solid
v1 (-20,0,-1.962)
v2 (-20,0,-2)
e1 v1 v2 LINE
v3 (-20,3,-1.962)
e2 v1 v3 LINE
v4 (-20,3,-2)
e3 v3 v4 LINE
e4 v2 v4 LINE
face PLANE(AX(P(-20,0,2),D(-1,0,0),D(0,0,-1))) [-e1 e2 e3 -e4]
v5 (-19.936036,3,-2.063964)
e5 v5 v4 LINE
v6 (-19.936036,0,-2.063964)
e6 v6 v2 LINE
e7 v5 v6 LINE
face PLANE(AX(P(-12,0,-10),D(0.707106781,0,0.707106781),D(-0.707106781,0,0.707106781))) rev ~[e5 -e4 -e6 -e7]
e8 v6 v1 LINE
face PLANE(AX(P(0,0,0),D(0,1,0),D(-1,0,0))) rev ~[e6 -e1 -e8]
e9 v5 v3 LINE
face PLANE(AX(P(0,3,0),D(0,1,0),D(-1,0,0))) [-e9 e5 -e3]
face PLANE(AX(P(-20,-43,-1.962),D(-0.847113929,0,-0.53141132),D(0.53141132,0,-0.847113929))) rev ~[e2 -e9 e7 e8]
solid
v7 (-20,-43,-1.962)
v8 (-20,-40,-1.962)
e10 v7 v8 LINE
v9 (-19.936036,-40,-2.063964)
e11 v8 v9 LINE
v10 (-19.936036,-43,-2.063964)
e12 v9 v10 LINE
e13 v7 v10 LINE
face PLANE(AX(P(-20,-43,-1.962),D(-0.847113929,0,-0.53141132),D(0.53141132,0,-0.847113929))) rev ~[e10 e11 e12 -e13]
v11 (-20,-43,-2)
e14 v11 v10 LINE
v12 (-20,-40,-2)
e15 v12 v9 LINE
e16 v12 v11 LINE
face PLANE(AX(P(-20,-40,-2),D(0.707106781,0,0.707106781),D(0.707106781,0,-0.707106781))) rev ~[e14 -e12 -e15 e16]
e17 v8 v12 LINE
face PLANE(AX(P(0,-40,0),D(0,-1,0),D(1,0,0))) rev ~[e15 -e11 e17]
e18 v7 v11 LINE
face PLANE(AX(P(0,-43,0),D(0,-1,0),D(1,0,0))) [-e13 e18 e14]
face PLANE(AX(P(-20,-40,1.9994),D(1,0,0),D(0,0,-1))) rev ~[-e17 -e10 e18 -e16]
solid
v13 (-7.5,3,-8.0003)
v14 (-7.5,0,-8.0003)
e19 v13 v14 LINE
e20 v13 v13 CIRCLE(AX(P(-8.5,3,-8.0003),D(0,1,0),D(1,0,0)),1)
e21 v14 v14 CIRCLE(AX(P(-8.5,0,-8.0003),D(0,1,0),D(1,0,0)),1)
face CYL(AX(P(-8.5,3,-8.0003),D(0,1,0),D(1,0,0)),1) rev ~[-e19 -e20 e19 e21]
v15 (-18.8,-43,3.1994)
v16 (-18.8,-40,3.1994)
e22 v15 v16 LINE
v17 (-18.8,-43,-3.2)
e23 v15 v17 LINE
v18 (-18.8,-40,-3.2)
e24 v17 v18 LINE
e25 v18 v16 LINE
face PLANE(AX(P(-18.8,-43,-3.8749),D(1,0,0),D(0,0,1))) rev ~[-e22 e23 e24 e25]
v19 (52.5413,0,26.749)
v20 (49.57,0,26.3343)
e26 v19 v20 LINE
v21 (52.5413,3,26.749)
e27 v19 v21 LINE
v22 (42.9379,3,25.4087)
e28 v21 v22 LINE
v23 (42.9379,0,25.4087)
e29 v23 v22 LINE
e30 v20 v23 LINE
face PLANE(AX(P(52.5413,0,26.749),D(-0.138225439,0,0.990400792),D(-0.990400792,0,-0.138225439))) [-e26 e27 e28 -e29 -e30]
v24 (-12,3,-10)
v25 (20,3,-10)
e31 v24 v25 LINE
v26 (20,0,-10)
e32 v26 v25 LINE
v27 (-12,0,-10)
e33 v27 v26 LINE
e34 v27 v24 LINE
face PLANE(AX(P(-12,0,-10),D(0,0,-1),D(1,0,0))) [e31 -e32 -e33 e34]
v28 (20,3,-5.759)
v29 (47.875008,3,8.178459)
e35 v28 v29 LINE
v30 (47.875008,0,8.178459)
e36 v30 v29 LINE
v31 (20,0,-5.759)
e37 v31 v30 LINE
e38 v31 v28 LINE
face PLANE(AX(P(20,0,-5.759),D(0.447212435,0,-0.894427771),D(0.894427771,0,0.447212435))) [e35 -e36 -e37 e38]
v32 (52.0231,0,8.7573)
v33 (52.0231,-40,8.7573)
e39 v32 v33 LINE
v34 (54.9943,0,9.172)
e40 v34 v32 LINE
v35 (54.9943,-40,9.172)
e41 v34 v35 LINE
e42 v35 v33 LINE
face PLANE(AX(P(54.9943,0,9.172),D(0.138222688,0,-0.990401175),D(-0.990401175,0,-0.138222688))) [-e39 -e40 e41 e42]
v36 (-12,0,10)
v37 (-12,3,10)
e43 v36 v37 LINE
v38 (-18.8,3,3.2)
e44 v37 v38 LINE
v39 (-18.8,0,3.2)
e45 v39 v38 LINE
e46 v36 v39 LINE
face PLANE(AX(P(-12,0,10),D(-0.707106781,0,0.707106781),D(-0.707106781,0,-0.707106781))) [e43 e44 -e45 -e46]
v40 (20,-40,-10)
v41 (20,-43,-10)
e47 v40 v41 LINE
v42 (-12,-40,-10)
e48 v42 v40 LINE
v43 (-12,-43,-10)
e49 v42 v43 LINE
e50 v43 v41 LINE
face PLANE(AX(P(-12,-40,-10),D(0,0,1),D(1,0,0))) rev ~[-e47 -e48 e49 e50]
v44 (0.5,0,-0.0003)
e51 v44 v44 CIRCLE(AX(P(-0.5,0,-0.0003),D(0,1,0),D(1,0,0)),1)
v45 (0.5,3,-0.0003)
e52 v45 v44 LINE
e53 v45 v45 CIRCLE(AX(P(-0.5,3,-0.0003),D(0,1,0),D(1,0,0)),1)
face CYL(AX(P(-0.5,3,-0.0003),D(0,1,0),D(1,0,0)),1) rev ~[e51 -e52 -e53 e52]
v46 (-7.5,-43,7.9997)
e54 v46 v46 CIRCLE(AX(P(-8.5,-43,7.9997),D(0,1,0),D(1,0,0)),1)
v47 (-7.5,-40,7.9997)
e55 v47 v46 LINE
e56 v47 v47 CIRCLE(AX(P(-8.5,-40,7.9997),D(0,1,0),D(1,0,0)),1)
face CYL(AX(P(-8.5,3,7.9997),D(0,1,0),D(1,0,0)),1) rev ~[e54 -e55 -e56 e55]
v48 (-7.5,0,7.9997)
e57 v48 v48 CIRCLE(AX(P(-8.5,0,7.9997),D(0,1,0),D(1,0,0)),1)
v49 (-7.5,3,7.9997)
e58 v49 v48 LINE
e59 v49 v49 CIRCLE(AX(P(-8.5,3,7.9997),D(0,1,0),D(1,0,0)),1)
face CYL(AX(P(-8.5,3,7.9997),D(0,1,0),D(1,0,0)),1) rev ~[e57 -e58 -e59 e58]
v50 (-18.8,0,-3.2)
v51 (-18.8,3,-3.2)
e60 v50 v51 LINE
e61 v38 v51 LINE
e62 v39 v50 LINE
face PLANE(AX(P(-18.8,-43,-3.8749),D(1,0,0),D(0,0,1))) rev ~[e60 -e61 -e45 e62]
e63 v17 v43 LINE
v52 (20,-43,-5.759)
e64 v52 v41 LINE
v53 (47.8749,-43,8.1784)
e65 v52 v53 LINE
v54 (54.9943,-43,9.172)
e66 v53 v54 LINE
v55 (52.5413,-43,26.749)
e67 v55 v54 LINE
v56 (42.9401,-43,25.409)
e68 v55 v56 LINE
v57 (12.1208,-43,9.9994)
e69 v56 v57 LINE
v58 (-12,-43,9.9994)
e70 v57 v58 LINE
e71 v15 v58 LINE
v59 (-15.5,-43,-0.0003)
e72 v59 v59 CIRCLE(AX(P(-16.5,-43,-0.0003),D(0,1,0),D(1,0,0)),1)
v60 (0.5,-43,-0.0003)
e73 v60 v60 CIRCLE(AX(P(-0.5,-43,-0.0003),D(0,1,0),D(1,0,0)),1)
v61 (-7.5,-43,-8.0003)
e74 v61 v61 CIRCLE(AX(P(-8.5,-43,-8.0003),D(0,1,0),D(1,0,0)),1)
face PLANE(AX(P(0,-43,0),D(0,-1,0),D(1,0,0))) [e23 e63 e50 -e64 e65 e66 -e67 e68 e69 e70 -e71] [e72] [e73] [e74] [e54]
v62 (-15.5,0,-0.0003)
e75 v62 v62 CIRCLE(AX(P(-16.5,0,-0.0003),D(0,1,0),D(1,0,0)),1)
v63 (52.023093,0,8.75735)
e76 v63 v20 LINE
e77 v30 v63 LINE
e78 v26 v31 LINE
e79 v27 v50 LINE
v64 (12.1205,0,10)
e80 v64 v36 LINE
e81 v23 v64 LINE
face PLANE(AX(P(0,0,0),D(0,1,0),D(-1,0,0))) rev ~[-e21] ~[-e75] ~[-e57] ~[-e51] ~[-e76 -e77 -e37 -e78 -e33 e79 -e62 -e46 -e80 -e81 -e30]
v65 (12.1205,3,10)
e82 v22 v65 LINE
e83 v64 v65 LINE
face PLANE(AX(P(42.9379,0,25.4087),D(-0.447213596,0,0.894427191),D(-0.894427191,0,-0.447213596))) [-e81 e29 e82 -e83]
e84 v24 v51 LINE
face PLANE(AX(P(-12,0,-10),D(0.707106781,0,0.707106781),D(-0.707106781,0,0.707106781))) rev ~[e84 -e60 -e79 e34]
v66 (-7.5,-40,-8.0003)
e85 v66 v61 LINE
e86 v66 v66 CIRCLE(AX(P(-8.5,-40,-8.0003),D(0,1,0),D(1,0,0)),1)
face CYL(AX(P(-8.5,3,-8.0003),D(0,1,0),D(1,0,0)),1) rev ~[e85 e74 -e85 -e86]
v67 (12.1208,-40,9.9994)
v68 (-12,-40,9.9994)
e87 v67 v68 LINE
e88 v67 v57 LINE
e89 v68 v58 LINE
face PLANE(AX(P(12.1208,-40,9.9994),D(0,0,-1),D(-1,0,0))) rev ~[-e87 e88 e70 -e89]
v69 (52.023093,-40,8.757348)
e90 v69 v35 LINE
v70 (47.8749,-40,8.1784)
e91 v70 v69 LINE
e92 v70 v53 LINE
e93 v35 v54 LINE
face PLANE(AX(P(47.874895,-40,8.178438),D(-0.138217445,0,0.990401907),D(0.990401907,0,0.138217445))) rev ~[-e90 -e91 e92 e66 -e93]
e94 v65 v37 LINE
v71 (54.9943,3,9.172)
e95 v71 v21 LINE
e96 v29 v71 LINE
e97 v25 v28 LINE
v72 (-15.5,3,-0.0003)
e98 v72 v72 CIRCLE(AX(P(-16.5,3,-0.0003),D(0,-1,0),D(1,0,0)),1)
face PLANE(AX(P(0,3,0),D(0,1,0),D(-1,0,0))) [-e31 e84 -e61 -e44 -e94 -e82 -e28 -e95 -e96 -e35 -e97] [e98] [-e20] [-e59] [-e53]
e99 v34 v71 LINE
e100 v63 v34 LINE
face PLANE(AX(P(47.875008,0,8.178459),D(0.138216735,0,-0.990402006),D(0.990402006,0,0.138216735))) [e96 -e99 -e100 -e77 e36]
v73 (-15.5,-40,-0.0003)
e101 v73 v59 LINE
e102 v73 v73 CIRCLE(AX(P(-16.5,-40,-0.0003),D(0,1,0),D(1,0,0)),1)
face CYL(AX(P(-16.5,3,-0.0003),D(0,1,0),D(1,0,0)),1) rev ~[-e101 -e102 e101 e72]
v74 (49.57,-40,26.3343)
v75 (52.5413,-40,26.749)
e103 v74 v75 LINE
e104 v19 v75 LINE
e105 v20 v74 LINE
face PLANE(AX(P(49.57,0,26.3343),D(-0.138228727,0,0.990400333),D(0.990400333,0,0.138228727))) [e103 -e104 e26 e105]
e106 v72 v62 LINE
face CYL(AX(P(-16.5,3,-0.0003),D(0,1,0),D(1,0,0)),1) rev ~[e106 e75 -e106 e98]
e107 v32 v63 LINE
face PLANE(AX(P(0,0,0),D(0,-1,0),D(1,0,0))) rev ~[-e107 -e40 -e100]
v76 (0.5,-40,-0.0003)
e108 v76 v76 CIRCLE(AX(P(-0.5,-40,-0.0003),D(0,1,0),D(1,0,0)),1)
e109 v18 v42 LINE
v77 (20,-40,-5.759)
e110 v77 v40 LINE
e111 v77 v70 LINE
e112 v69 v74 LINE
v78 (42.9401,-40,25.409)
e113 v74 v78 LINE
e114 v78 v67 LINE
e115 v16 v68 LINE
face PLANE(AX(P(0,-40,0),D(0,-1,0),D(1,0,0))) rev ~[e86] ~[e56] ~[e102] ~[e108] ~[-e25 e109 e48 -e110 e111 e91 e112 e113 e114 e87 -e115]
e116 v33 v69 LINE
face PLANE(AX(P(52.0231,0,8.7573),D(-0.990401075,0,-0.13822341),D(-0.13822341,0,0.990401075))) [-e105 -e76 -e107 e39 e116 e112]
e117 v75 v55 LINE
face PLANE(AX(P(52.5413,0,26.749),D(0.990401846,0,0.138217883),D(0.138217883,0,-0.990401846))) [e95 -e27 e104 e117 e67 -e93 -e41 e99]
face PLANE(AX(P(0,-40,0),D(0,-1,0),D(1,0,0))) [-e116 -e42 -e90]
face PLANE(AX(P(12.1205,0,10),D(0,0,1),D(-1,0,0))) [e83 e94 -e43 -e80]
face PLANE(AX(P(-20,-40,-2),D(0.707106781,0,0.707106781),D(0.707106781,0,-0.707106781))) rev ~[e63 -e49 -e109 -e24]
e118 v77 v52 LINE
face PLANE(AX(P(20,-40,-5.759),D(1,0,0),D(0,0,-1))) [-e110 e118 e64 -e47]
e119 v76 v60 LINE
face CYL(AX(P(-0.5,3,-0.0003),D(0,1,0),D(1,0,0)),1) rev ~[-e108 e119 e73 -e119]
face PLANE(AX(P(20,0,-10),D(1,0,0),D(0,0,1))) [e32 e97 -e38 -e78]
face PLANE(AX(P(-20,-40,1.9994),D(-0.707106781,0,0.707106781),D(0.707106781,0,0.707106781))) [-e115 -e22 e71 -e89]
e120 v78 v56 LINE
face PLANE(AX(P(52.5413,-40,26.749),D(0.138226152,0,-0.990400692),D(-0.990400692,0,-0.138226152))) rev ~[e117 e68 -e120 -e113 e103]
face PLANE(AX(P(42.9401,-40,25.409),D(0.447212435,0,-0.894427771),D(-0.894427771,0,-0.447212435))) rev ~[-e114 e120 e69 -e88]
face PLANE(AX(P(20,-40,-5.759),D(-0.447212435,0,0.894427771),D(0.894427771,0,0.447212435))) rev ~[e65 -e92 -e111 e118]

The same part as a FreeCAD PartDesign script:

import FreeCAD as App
import Part
import Sketcher
Q = App.Units.Quantity

doc = App.newDocument("Part")
params = doc.addObject("Spreadsheet::Sheet", "Params")
for row, (alias, value) in enumerate([
    ("pad1_length", "3 mm"),
    ("sketch2_length", "3 mm"),
    ("pad2_length", "40 mm"),
    ("pad3_length", "3 mm"),
    ("sketch4_diameter", "2 mm"),
    ("pocket1_length", "50 mm"),
    ("pocket2_length", "50 mm"),
], start=1):
    params.set(f"A{row}", alias)
    params.set(f"B{row}", "=" + value)
    params.setAlias(f"B{row}", alias)

body = doc.addObject("PartDesign::Body", "Body")
body.AllowCompound = True

sketch1 = body.newObject("Sketcher::SketchObject", "Sketch")
sketch1.AttachmentSupport = (doc.getObject("XZ_Plane"), [""])
sketch1.MapMode = "FlatFace"
sketch1.addGeometry([
    Part.LineSegment(App.Vector(47.9, 8.2, 0), App.Vector(20, -5.8, 0)),
    Part.LineSegment(App.Vector(20, -5.8, 0), App.Vector(20, -10, 0)),
    Part.LineSegment(App.Vector(20, -10, 0), App.Vector(-12, -10, 0)),
    Part.LineSegment(App.Vector(-12, -10, 0), App.Vector(-20, -2, 0)),
    Part.LineSegment(App.Vector(-20, -2, 0), App.Vector(-20, 2, 0)),
    Part.LineSegment(App.Vector(-20, 2, 0), App.Vector(-12, 10, 0)),
    Part.LineSegment(App.Vector(-12, 10, 0), App.Vector(12.1, 10, 0)),
    Part.LineSegment(App.Vector(12.1, 10, 0), App.Vector(42.9, 25.4, 0)),
    Part.LineSegment(App.Vector(42.9, 25.4, 0), App.Vector(52.5, 26.7, 0)),
    Part.LineSegment(App.Vector(52.5, 26.7, 0), App.Vector(55, 9.2, 0)),
    Part.LineSegment(App.Vector(55, 9.2, 0), App.Vector(47.9, 8.2, 0)),
], False)
sketch1.addConstraint([
    Sketcher.Constraint("Coincident", 0, 2, 1, 1),
    Sketcher.Constraint("Coincident", 1, 2, 2, 1),
    Sketcher.Constraint("Coincident", 2, 2, 3, 1),
    Sketcher.Constraint("Coincident", 3, 2, 4, 1),
    Sketcher.Constraint("Coincident", 4, 2, 5, 1),
    Sketcher.Constraint("Coincident", 5, 2, 6, 1),
    Sketcher.Constraint("Coincident", 6, 2, 7, 1),
    Sketcher.Constraint("Coincident", 7, 2, 8, 1),
    Sketcher.Constraint("Coincident", 8, 2, 9, 1),
    Sketcher.Constraint("Coincident", 9, 2, 10, 1),
    Sketcher.Constraint("Coincident", 10, 2, 0, 1),
    Sketcher.Constraint("Vertical", 1),
    Sketcher.Constraint("Horizontal", 2),
    Sketcher.Constraint("Vertical", 4),
    Sketcher.Constraint("Horizontal", 6),
    Sketcher.Constraint("Symmetric", 2, 2, 5, 2, -1),
    Sketcher.Constraint("Perpendicular", 3, 5),
    Sketcher.Constraint("Parallel", 0, 7),
    Sketcher.Constraint("Perpendicular", 8, 9),
    Sketcher.Constraint("Perpendicular", 9, 10),
    Sketcher.Constraint("Equal", 3, 5),
    Sketcher.Constraint("DistanceX", -1, 1, 0, 2, 20.0),
    Sketcher.Constraint("DistanceX", 3, 2, -1, 1, 20.0),
    Sketcher.Constraint("DistanceX", 3, 2, 2, 2, 8.0),
    Sketcher.Constraint("DistanceY", 2, 2, 5, 2, 20.0),
    Sketcher.Constraint("DistanceY", 1, 2, 1, 1, 4.241),
    Sketcher.Constraint("Distance", 7, 34.455),
    Sketcher.Constraint("DistanceX", 6, 1, 6, 2, 24.1205),
    Sketcher.Constraint("DistanceX", -1, 1, 7, 2, 42.938),
    Sketcher.Constraint("DistanceY", -1, 1, 8, 2, 26.749),
    Sketcher.Constraint("DistanceY", -1, 1, 9, 2, 9.172),
    Sketcher.Constraint("DistanceX", 8, 2, 9, 2, 2.453),
])
pad1 = body.newObject("PartDesign::Pad", "Pad")
pad1.Profile = sketch1
pad1.setExpression("Length", "Params.pad1_length")
pad1.Reversed = True

sketch2 = body.newObject("Sketcher::SketchObject", "Sketch001")
sketch2.AttachmentSupport = (doc.getObject("XZ_Plane"), [""])
sketch2.MapMode = "FlatFace"
sketch2.addGeometry([
    Part.LineSegment(App.Vector(52, 8.8, 0), App.Vector(55, 9.2, 0)),
    Part.LineSegment(App.Vector(55, 9.2, 0), App.Vector(52.5, 26.7, 0)),
    Part.LineSegment(App.Vector(52.5, 26.7, 0), App.Vector(49.6, 26.3, 0)),
    Part.LineSegment(App.Vector(49.6, 26.3, 0), App.Vector(52, 8.8, 0)),
], False)
sketch2.addConstraint([
    Sketcher.Constraint("Coincident", 0, 2, 1, 1),
    Sketcher.Constraint("Coincident", 1, 2, 2, 1),
    Sketcher.Constraint("Coincident", 2, 2, 3, 1),
    Sketcher.Constraint("Coincident", 3, 2, 0, 1),
    Sketcher.Constraint("Perpendicular", 0, 1),
    Sketcher.Constraint("Perpendicular", 1, 2),
    Sketcher.Constraint("Perpendicular", 2, 3),
    Sketcher.Constraint("Distance", 0, 3.0),
    Sketcher.Constraint("DistanceX", -1, 1, 2, 2, 49.57),
    Sketcher.Constraint("DistanceY", -1, 1, 0, 2, 9.172),
    Sketcher.Constraint("DistanceY", -1, 1, 1, 2, 26.749),
    Sketcher.Constraint("DistanceX", -1, 1, 3, 2, 52.023),
])
sketch2.setExpression("Constraints[7]", "Params.sketch2_length")
pad2 = body.newObject("PartDesign::Pad", "Pad001")
pad2.Profile = sketch2
pad2.setExpression("Length", "Params.pad2_length")

sketch3 = body.newObject("Sketcher::SketchObject", "Sketch002")
sketch3.AttachmentSupport = (doc.getObject("XZ_Plane"), [""])
sketch3.MapMode = "FlatFace"
sketch3.AttachmentOffset = App.Placement(App.Vector(0, 0, 40), App.Rotation())
sketch3.addGeometry([
    Part.LineSegment(App.Vector(55, 9.2, 0), App.Vector(52.5, 26.7, 0)),
    Part.LineSegment(App.Vector(52.5, 26.7, 0), App.Vector(42.9, 25.4, 0)),
    Part.LineSegment(App.Vector(42.9, 25.4, 0), App.Vector(12.1, 10, 0)),
    Part.LineSegment(App.Vector(12.1, 10, 0), App.Vector(-12, 10, 0)),
    Part.LineSegment(App.Vector(-12, 10, 0), App.Vector(-20, 2, 0)),
    Part.LineSegment(App.Vector(-20, 2, 0), App.Vector(-20, -2, 0)),
    Part.LineSegment(App.Vector(-20, -2, 0), App.Vector(-12, -10, 0)),
    Part.LineSegment(App.Vector(-12, -10, 0), App.Vector(20, -10, 0)),
    Part.LineSegment(App.Vector(20, -10, 0), App.Vector(20, -5.8, 0)),
    Part.LineSegment(App.Vector(20, -5.8, 0), App.Vector(47.9, 8.2, 0)),
    Part.LineSegment(App.Vector(47.9, 8.2, 0), App.Vector(55, 9.2, 0)),
], False)
sketch3.addConstraint([
    Sketcher.Constraint("Coincident", 0, 2, 1, 1),
    Sketcher.Constraint("Coincident", 1, 2, 2, 1),
    Sketcher.Constraint("Coincident", 2, 2, 3, 1),
    Sketcher.Constraint("Coincident", 3, 2, 4, 1),
    Sketcher.Constraint("Coincident", 4, 2, 5, 1),
    Sketcher.Constraint("Coincident", 5, 2, 6, 1),
    Sketcher.Constraint("Coincident", 6, 2, 7, 1),
    Sketcher.Constraint("Coincident", 7, 2, 8, 1),
    Sketcher.Constraint("Coincident", 8, 2, 9, 1),
    Sketcher.Constraint("Coincident", 9, 2, 10, 1),
    Sketcher.Constraint("Coincident", 10, 2, 0, 1),
    Sketcher.Constraint("Horizontal", 3),
    Sketcher.Constraint("Vertical", 5),
    Sketcher.Constraint("Horizontal", 7),
    Sketcher.Constraint("Vertical", 8),
    Sketcher.Constraint("Perpendicular", 0, 1),
    Sketcher.Constraint("Perpendicular", 4, 6),
    Sketcher.Constraint("Parallel", 2, 9),
    Sketcher.Constraint("Parallel", 1, 10),
    Sketcher.Constraint("Vertical", 3, 2, 6, 2),
    Sketcher.Constraint("Equal", 4, 6),
    Sketcher.Constraint("DistanceX", 4, 2, 3, 2, 8.0),
    Sketcher.Constraint("DistanceX", 5, 2, 7, 2, 40.0),
    Sketcher.Constraint("DistanceX", 3, 2, -1, 1, 12.0),
    Sketcher.Constraint("DistanceY", 5, 2, -1, 1, 2.0),
    Sketcher.Constraint("DistanceY", 8, 1, 8, 2, 4.241),
    Sketcher.Constraint("DistanceX", -1, 1, 1, 2, 42.94),
    Sketcher.Constraint("DistanceY", 1, 2, 0, 2, 1.34),
    Sketcher.Constraint("Distance", 2, 34.457),
    Sketcher.Constraint("Distance", 9, 31.165),
    Sketcher.Constraint("DistanceX", 3, 2, 3, 1, 24.1208),
    Sketcher.Constraint("DistanceY", 5, 2, 5, 1, 3.9994),
    Sketcher.Constraint("DistanceX", 0, 2, 10, 2, 2.453),
])
pad3 = body.newObject("PartDesign::Pad", "Pad002")
pad3.Profile = sketch3
pad3.setExpression("Length", "Params.pad3_length")

sketch4 = body.newObject("Sketcher::SketchObject", "Sketch003")
sketch4.AttachmentSupport = (doc.getObject("XZ_Plane"), [""])
sketch4.MapMode = "FlatFace"
sketch4.AttachmentOffset = App.Placement(App.Vector(0, 0, -3), App.Rotation())
sketch4.addGeometry([
    Part.Circle(App.Vector(-16.5, 0, 0), App.Vector(0, 0, 1), 1),
    Part.Circle(App.Vector(-0.5, 0, 0), App.Vector(0, 0, 1), 1),
    Part.Circle(App.Vector(-8.5, -8, 0), App.Vector(0, 0, 1), 1),
    Part.Circle(App.Vector(-8.5, 8, 0), App.Vector(0, 0, 1), 1),
], False)
sketch4.addConstraint([
    Sketcher.Constraint("Equal", 0, 1),
    Sketcher.Constraint("Equal", 1, 2),
    Sketcher.Constraint("Equal", 2, 3),
    Sketcher.Constraint("Horizontal", 0, 3, 1, 3),
    Sketcher.Constraint("Vertical", 2, 3, 3, 3),
    Sketcher.Constraint("Diameter", 0, 2.0),
    Sketcher.Constraint("DistanceX", 0, 3, 2, 3, 8.0),
    Sketcher.Constraint("DistanceY", 2, 3, 0, 3, 8.0),
    Sketcher.Constraint("DistanceX", 2, 3, 1, 3, 8.0),
    Sketcher.Constraint("DistanceY", 0, 3, 3, 3, 8.0),
    Sketcher.Constraint("DistanceX", 0, 3, -1, 1, 16.5),
    Sketcher.Constraint("DistanceY", 2, 3, -1, 1, 8.0003),
])
sketch4.setExpression("Constraints[5]", "Params.sketch4_diameter")
pocket1 = body.newObject("PartDesign::Pocket", "Pocket")
pocket1.Profile = sketch4
pocket1.setExpression("Length", "Params.pocket1_length")
pocket1.Reversed = True

sketch5 = body.newObject("Sketcher::SketchObject", "Sketch004")
sketch5.AttachmentSupport = (doc.getObject("XZ_Plane"), [""])
sketch5.MapMode = "FlatFace"
sketch5.AttachmentOffset = App.Placement(App.Vector(0, 0, 43), App.Rotation())
sketch5.addGeometry([
    Part.LineSegment(App.Vector(-20, -2, 0), App.Vector(-18.8, -3.9, 0)),
    Part.LineSegment(App.Vector(-18.8, -3.9, 0), App.Vector(-18.8, 4.3, 0)),
    Part.LineSegment(App.Vector(-18.8, 4.3, 0), App.Vector(-20, 2, 0)),
    Part.LineSegment(App.Vector(-20, 2, 0), App.Vector(-20, -2, 0)),
], False)
sketch5.addConstraint([
    Sketcher.Constraint("Coincident", 0, 2, 1, 1),
    Sketcher.Constraint("Coincident", 1, 2, 2, 1),
    Sketcher.Constraint("Coincident", 2, 2, 3, 1),
    Sketcher.Constraint("Coincident", 3, 2, 0, 1),
    Sketcher.Constraint("Vertical", 1),
    Sketcher.Constraint("Vertical", 3),
    Sketcher.Constraint("DistanceX", 2, 2, 1, 2, 1.2),
    Sketcher.Constraint("DistanceX", 2, 2, -1, 1, 20.0),
    Sketcher.Constraint("DistanceY", -1, 1, 2, 2, 2.0),
    Sketcher.Constraint("Angle", 0, Q("-57.8991 deg")),
    Sketcher.Constraint("DistanceY", 3, 2, 3, 1, 3.962),
    Sketcher.Constraint("DistanceY", 1, 1, 1, 2, 8.2075),
])
pocket2 = body.newObject("PartDesign::Pocket", "Pocket001")
pocket2.Profile = sketch5
pocket2.setExpression("Length", "Params.pocket2_length")

doc.recompute()
